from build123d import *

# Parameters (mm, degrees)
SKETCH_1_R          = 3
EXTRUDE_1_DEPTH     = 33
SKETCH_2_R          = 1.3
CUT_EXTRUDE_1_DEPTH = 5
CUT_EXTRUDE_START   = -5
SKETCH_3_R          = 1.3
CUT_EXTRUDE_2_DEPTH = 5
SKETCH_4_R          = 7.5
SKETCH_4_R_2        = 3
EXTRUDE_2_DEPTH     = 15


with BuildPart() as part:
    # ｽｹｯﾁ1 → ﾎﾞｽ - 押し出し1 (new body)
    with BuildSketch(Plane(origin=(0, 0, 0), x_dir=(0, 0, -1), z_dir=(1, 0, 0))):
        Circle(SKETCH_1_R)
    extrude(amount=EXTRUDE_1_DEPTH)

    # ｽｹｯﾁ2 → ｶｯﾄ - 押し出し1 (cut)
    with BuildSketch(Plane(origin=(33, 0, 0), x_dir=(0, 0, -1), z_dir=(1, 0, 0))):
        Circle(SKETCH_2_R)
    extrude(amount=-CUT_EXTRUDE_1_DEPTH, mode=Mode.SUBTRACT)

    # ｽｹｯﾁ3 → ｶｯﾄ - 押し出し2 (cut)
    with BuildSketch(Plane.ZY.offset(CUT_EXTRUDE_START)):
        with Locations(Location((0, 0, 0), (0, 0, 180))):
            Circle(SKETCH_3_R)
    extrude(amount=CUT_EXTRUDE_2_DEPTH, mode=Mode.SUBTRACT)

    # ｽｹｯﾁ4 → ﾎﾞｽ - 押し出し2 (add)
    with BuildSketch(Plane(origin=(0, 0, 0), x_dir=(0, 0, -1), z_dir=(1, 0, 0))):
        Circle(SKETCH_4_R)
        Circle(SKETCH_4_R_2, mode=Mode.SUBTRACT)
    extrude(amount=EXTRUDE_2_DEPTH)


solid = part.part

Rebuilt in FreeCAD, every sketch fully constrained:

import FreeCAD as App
import Part
import Sketcher
Q = App.Units.Quantity

doc = App.newDocument("Part")
body = doc.addObject("PartDesign::Body", "Body")

# Sketch on YZ plane
sketch1 = body.newObject("Sketcher::SketchObject", "Sketch")
sketch1.AttachmentSupport = (doc.getObject("YZ_Plane"), [""])
sketch1.MapMode = "FlatFace"
sketch1.addGeometry(Part.Circle(App.Vector(0, 0, 0), App.Vector(0, 0, 1), 3), False)
sketch1.addConstraint(Sketcher.Constraint("Coincident", 0, 3, -1, 1))
sketch1.addConstraint(Sketcher.Constraint("Diameter", 0, Q("6 mm")))
pad1 = body.newObject("PartDesign::Pad", "Pad")
pad1.Profile = sketch1
pad1.Length = 33

# Sketch on YZ plane
sketch2 = body.newObject("Sketcher::SketchObject", "Sketch001")
sketch2.AttachmentSupport = (doc.getObject("YZ_Plane"), [""])
sketch2.MapMode = "FlatFace"
sketch2.AttachmentOffset = App.Placement(App.Vector(0, 0, 33), App.Rotation())
sketch2.addGeometry(Part.Circle(App.Vector(0, 0, 0), App.Vector(0, 0, 1), 1.3), False)
sketch2.addConstraint(Sketcher.Constraint("Coincident", 0, 3, -1, 1))
sketch2.addConstraint(Sketcher.Constraint("Diameter", 0, Q("2.6 mm")))
pocket1 = body.newObject("PartDesign::Pocket", "Pocket")
pocket1.Profile = sketch2
pocket1.Length = 5

# Sketch on YZ plane
sketch3 = body.newObject("Sketcher::SketchObject", "Sketch002")
sketch3.AttachmentSupport = (doc.getObject("YZ_Plane"), [""])
sketch3.MapMode = "FlatFace"
sketch3.AttachmentOffset = App.Placement(App.Vector(0, 0, 5), App.Rotation())
sketch3.addGeometry(Part.Circle(App.Vector(0, 0, 0), App.Vector(0, 0, 1), 1.3), False)
sketch3.addConstraint(Sketcher.Constraint("Coincident", 0, 3, -1, 1))
sketch3.addConstraint(Sketcher.Constraint("Diameter", 0, Q("2.6 mm")))
pocket2 = body.newObject("PartDesign::Pocket", "Pocket001")
pocket2.Profile = sketch3
pocket2.Length = 5

# Sketch on YZ plane
sketch4 = body.newObject("Sketcher::SketchObject", "Sketch003")
sketch4.AttachmentSupport = (doc.getObject("YZ_Plane"), [""])
sketch4.MapMode = "FlatFace"
sketch4.addGeometry(Part.Circle(App.Vector(0, 0, 0), App.Vector(0, 0, 1), 7.5), False)
sketch4.addGeometry(Part.Circle(App.Vector(0, 0, 0), App.Vector(0, 0, 1), 3), False)
sketch4.addConstraint(Sketcher.Constraint("Coincident", 0, 3, -1, 1))
sketch4.addConstraint(Sketcher.Constraint("Coincident", 1, 3, -1, 1))
sketch4.addConstraint(Sketcher.Constraint("Diameter", 0, Q("15 mm")))
sketch4.addConstraint(Sketcher.Constraint("Diameter", 1, Q("6 mm")))
pad2 = body.newObject("PartDesign::Pad", "Pad001")
pad2.Profile = sketch4
pad2.Length = 15

doc.recompute()
